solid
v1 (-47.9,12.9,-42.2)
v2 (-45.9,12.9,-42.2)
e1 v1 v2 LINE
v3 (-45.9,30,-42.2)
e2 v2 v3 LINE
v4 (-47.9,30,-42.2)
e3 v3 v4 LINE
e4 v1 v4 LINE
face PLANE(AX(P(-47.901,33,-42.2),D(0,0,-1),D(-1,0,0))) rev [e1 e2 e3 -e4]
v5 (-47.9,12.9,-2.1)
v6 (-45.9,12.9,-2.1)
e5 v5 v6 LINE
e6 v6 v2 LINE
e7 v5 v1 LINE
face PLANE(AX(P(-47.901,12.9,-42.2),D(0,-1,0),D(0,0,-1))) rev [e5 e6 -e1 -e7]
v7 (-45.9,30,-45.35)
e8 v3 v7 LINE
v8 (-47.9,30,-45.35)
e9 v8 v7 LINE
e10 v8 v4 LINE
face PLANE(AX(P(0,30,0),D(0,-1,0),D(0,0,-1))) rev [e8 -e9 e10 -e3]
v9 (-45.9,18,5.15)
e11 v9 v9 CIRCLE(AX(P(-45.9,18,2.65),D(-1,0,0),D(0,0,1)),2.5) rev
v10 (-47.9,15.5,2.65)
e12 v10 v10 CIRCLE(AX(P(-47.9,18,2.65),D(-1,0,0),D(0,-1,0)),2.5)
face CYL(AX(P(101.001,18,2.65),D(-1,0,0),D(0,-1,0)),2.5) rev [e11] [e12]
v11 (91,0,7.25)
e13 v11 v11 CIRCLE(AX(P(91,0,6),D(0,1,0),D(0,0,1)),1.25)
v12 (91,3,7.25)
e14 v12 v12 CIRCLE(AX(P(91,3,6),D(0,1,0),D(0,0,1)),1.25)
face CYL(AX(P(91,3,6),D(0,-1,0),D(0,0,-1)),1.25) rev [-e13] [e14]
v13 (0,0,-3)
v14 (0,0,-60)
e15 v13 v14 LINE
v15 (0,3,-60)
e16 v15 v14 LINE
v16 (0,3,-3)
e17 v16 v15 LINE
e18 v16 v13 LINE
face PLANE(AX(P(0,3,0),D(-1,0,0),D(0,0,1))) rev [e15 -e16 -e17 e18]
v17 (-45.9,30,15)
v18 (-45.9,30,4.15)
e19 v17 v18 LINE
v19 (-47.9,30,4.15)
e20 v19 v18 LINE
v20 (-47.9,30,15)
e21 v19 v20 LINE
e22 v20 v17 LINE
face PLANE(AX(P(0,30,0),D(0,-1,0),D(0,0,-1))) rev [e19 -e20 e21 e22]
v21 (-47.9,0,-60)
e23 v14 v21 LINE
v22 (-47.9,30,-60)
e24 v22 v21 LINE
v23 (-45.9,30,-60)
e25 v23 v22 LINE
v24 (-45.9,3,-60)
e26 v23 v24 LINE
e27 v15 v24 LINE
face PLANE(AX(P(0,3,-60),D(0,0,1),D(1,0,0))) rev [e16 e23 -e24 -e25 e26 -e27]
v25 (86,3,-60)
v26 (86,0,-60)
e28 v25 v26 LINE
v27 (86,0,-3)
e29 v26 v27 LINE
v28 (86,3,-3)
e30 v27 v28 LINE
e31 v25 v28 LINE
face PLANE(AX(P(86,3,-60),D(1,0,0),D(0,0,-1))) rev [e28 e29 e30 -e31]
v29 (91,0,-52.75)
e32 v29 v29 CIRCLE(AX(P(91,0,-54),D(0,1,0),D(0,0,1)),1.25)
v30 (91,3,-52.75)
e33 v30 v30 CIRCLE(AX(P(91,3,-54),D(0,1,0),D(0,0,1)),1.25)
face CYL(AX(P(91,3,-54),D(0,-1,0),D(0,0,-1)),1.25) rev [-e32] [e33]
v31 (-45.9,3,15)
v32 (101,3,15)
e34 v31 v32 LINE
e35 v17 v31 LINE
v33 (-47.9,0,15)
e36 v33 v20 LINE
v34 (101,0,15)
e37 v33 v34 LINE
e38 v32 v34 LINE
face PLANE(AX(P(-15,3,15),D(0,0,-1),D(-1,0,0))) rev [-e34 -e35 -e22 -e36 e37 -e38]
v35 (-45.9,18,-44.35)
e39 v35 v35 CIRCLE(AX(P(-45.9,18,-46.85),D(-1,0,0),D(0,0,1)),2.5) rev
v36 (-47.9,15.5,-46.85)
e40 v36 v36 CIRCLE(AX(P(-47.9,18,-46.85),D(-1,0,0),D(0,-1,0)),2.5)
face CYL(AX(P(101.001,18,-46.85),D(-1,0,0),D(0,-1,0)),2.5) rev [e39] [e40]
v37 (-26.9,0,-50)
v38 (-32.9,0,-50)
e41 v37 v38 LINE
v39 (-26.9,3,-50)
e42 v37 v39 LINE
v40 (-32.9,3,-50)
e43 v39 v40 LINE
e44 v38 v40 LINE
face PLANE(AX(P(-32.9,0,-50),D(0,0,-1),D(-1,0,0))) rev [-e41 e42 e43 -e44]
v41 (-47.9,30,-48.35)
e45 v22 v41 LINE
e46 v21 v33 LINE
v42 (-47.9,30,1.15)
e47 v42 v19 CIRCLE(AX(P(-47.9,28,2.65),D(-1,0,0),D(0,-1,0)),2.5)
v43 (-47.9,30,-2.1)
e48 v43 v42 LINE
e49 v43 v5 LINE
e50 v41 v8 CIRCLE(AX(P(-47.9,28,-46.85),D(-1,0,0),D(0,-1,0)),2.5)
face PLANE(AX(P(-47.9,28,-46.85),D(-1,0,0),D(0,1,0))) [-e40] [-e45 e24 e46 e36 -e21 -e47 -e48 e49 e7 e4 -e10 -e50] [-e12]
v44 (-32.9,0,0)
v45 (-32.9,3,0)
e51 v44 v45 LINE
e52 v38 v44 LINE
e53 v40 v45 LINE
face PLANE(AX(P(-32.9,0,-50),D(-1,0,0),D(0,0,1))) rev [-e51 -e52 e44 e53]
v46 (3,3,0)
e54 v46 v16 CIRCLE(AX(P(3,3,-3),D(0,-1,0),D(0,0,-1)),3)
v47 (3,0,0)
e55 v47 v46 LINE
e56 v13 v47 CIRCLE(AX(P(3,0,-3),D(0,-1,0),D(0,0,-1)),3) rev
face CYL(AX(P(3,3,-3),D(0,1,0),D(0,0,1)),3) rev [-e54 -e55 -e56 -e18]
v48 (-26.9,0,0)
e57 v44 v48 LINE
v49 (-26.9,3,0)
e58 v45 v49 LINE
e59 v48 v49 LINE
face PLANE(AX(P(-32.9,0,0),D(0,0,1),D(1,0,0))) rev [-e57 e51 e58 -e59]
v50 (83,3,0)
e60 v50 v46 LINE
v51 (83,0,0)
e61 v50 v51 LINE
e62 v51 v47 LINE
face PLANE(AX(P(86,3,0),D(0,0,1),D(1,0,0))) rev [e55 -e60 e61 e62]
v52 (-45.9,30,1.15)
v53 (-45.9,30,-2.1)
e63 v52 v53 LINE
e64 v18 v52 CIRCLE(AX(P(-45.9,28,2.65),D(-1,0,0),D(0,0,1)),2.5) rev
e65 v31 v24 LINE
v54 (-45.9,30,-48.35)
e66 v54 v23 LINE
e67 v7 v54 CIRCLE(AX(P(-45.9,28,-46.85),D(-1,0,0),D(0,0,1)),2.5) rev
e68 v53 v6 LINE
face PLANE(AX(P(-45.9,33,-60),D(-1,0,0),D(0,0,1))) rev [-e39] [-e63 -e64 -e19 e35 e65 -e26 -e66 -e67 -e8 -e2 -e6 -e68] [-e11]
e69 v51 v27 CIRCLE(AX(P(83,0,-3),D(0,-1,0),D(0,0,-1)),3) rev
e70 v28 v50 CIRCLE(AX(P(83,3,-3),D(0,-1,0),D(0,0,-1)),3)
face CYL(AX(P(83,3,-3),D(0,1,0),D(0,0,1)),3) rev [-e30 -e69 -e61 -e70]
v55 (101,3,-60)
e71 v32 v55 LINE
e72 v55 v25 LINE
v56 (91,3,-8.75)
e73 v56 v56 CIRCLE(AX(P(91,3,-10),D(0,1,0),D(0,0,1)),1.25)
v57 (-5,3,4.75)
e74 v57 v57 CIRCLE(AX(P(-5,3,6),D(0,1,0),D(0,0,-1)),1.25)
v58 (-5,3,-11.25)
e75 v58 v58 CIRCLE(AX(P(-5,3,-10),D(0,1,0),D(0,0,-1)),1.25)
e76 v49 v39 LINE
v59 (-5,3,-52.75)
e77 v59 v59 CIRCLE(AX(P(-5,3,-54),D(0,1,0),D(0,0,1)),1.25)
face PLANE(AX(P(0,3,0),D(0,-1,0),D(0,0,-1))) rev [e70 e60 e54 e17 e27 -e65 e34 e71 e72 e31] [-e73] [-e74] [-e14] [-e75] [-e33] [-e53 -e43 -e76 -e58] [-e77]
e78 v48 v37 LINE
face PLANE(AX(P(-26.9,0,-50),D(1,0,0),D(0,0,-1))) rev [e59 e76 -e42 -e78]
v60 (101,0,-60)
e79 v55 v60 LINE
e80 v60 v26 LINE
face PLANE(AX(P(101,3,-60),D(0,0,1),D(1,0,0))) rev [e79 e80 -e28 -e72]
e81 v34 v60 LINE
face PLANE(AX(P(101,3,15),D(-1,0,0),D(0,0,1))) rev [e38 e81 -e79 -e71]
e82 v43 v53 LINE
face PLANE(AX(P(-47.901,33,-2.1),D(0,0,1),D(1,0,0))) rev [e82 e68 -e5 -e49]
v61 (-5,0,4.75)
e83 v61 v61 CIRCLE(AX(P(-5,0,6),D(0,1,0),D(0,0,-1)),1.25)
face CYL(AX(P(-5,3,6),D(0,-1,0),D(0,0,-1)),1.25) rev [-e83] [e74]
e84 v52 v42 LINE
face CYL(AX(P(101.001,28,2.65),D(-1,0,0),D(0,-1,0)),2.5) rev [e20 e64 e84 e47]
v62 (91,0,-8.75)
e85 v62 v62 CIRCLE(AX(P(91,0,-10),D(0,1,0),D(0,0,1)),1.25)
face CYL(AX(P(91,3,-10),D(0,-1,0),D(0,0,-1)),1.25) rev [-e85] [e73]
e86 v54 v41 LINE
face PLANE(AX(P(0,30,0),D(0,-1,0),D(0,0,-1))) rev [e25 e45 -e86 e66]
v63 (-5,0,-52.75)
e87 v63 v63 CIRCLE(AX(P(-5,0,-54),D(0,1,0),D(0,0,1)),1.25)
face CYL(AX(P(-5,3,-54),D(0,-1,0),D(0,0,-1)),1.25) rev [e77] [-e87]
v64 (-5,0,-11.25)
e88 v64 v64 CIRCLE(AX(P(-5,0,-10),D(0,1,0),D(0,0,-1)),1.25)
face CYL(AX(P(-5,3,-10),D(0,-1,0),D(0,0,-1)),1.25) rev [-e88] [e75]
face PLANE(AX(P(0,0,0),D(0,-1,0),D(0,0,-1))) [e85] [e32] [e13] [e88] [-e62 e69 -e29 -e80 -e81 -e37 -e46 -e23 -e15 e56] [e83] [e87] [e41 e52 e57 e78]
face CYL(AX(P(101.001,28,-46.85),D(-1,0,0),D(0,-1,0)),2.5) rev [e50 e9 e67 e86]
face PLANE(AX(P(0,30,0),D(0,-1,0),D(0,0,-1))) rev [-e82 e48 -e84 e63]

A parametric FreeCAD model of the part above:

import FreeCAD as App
import Part
import Sketcher
from FreeCAD import Vector
Q = App.Units.Quantity


def edges_at(feature, points):
    """Names of the edges that pass closest to the given points."""
    edges = feature.Shape.Edges
    near = lambda p: min(range(len(edges)), key=lambda i: edges[i].distToShape(Part.Vertex(*p))[0])
    return sorted({f"Edge{near(p) + 1}" for p in points})


def add_polygon(sketch, points):
    """Adds a closed chain of lines whose ends are joined by coincident constraints."""
    first, n = sketch.GeometryCount, len(points)
    for a, b in zip(points, points[1:] + points[:1]):
        sketch.addGeometry(Part.LineSegment(App.Vector(*a, 0), App.Vector(*b, 0)), False)
    for i in range(n):
        sketch.addConstraint(Sketcher.Constraint("Coincident", first + i, 2, first + (i + 1) % n, 1))

doc = App.newDocument("Part")
params = doc.addObject("Spreadsheet::Sheet", "Params")
for row, (alias, value) in enumerate([
    ("sketch1_diameter", "2.5 mm"),
    ("sketch1_width", "15 mm"),
    ("sketch1_width2", "116 mm"),
    ("sketch1_height", "60 mm"),
    ("sketch1_height2", "75 mm"),
    ("pad1_length", "3 mm"),
    ("fillet_radius", "3 mm"),
    ("sketch2_width", "3 mm"),
    ("sketch2_height", "75 mm"),
    ("pad2_length", "32.9 mm"),
    ("sketch3_width", "2 mm"),
    ("sketch3_height", "75 mm"),
    ("pad3_length", "30 mm"),
    ("sketch4_width", "20.1 mm"),
    ("sketch4_height", "40.1 mm"),
    ("sketch5_diameter", "5 mm"),
    ("sketch6_diameter", "5 mm"),
    ("sketch7_diameter", "5 mm"),
    ("sketch8_diameter", "5 mm"),
    ("sketch9_width", "2 mm"),
    ("sketch9_height", "75 mm"),
    ("pocket6_length", "3 mm"),
    ("sketch10_width", "6 mm"),
    ("sketch10_height", "50 mm"),
], start=1):
    params.set(f"A{row}", alias)
    params.set(f"B{row}", "=" + value)
    params.setAlias(f"B{row}", alias)

body = doc.addObject("PartDesign::Body", "Body")

sketch1 = body.newObject("Sketcher::SketchObject", "Sketch")
sketch1.AttachmentSupport = (doc.getObject("XZ_Plane"), [""])
sketch1.MapMode = "FlatFace"
add_polygon(sketch1, [(0, 0), (0, -60), (-15, -60), (-15, 15), (101, 15), (101, -60), (86, -60), (86, 0)])
sketch1.addGeometry(Part.Circle(Vector(-5, 6, 0), Vector(0, 0, 1), 1.2), False)
sketch1.addGeometry(Part.Circle(Vector(-5, -10, 0), Vector(0, 0, 1), 1.2), False)
sketch1.addGeometry(Part.Circle(Vector(91, 6, 0), Vector(0, 0, 1), 1.2), False)
sketch1.addGeometry(Part.Circle(Vector(91, -10, 0), Vector(0, 0, 1), 1.2), False)
sketch1.addGeometry(Part.Circle(Vector(-5, -54, 0), Vector(0, 0, 1), 1.2), False)
sketch1.addGeometry(Part.Circle(Vector(91, -54, 0), Vector(0, 0, 1), 1.2), False)
sketch1.addConstraint([
    Sketcher.Constraint("Vertical", 0),
    Sketcher.Constraint("Horizontal", 1),
    Sketcher.Constraint("Vertical", 2),
    Sketcher.Constraint("Horizontal", 3),
    Sketcher.Constraint("Vertical", 4),
    Sketcher.Constraint("Horizontal", 5),
    Sketcher.Constraint("Vertical", 6),
    Sketcher.Constraint("Horizontal", 7),
    Sketcher.Constraint("Coincident", 7, 2, -1, 1),
    Sketcher.Constraint("Equal", 8, 9),
    Sketcher.Constraint("Equal", 9, 10),
    Sketcher.Constraint("Equal", 10, 11),
    Sketcher.Constraint("Equal", 11, 12),
    Sketcher.Constraint("Equal", 12, 13),
    Sketcher.Constraint("Horizontal", 8, 3, 10, 3),
    Sketcher.Constraint("Horizontal", 9, 3, 11, 3),
    Sketcher.Constraint("Horizontal", 12, 3, 13, 3),
    Sketcher.Constraint("Horizontal", 1, 2, 4, 2),
    Sketcher.Constraint("Vertical", 8, 3, 9, 3),
    Sketcher.Constraint("Vertical", 10, 3, 11, 3),
    Sketcher.Constraint("Vertical", 9, 3, 12, 3),
    Sketcher.Constraint("Vertical", 11, 3, 13, 3),
    Sketcher.Constraint("Equal", 1, 5),
    Sketcher.Constraint("Diameter", 8, Q("2.5 mm")),
    Sketcher.Constraint("DistanceX", 1, 2, 1, 1, Q("15 mm")),
    Sketcher.Constraint("DistanceX", 3, 1, 3, 2, Q("116 mm")),
    Sketcher.Constraint("DistanceY", 0, 2, 0, 1, Q("60 mm")),
    Sketcher.Constraint("DistanceY", 2, 1, 2, 2, Q("75 mm")),
    Sketcher.Constraint("DistanceX", 8, 3, -1, 1, Q("5 mm")),
    Sketcher.Constraint("DistanceY", -1, 1, 8, 3, Q("6 mm")),
    Sketcher.Constraint("DistanceY", 9, 3, -1, 1, Q("10 mm")),
    Sketcher.Constraint("DistanceX", -1, 1, 10, 3, Q("91 mm")),
    Sketcher.Constraint("DistanceY", 12, 3, -1, 1, Q("54 mm")),
])
sketch1.setExpression("Constraints[31]", "Params.sketch1_diameter")
sketch1.setExpression("Constraints[32]", "Params.sketch1_width")
sketch1.setExpression("Constraints[33]", "Params.sketch1_width2")
sketch1.setExpression("Constraints[34]", "Params.sketch1_height")
sketch1.setExpression("Constraints[35]", "Params.sketch1_height2")
pad1 = body.newObject("PartDesign::Pad", "Pad")
pad1.Profile = sketch1
pad1.setExpression("Length", "Params.pad1_length")
pad1.Reversed = True
doc.recompute()

fillet = body.newObject("PartDesign::Fillet", "Fillet")
fillet.Base = (pad1, edges_at(pad1, [(86, 1.5, 0), (0, 1.5, 0)]))
fillet.setExpression("Radius", "Params.fillet_radius")

sketch2 = body.newObject("Sketcher::SketchObject", "Sketch001")
sketch2.AttachmentSupport = (doc.getObject("YZ_Plane"), [""])
sketch2.MapMode = "FlatFace"
sketch2.AttachmentOffset = App.Placement(Vector(0, 0, -15), App.Rotation())
add_polygon(sketch2, [(3, -60), (0, -60), (0, 15), (3, 15)])
sketch2.addConstraint([
    Sketcher.Constraint("Horizontal", 0),
    Sketcher.Constraint("Vertical", 1),
    Sketcher.Constraint("Horizontal", 2),
    Sketcher.Constraint("Vertical", 3),
    Sketcher.Constraint("PointOnObject", 0, 2, -2),
    Sketcher.Constraint("DistanceX", 0, 2, 0, 1, Q("3 mm")),
    Sketcher.Constraint("DistanceY", 1, 1, 1, 2, Q("75 mm")),
    Sketcher.Constraint("DistanceY", 0, 2, -1, 1, Q("60 mm")),
])
sketch2.setExpression("Constraints[9]", "Params.sketch2_width")
sketch2.setExpression("Constraints[10]", "Params.sketch2_height")
pad2 = body.newObject("PartDesign::Pad", "Pad001")
pad2.Profile = sketch2
pad2.setExpression("Length", "Params.pad2_length")
pad2.Reversed = True

sketch3 = body.newObject("Sketcher::SketchObject", "Sketch002")
sketch3.AttachmentSupport = (doc.getObject("XZ_Plane"), [""])
sketch3.MapMode = "FlatFace"
sketch3.AttachmentOffset = App.Placement(Vector(0, 0, -3), App.Rotation())
add_polygon(sketch3, [(-47.9, -60), (-47.9, 15), (-45.9, 15), (-45.9, -60)])
sketch3.addConstraint([
    Sketcher.Constraint("Vertical", 0),
    Sketcher.Constraint("Horizontal", 1),
    Sketcher.Constraint("Vertical", 2),
    Sketcher.Constraint("Horizontal", 3),
    Sketcher.Constraint("DistanceX", 1, 1, 1, 2, Q("2 mm")),
    Sketcher.Constraint("DistanceY", 0, 1, 0, 2, Q("75 mm")),
    Sketcher.Constraint("DistanceY", -1, 1, 0, 2, Q("15 mm")),
    Sketcher.Constraint("DistanceX", 0, 2, -1, 1, Q("47.9 mm")),
])
sketch3.setExpression("Constraints[8]", "Params.sketch3_width")
sketch3.setExpression("Constraints[9]", "Params.sketch3_height")
pad3 = body.newObject("PartDesign::Pad", "Pad002")
pad3.Profile = sketch3
pad3.setExpression("Length", "Params.pad3_length")
pad3.Reversed = True

sketch4 = body.newObject("Sketcher::SketchObject", "Sketch003")
sketch4.AttachmentSupport = (doc.getObject("YZ_Plane"), [""])
sketch4.MapMode = "FlatFace"
sketch4.AttachmentOffset = App.Placement(Vector(0, 0, -45.9), App.Rotation())
add_polygon(sketch4, [(33, -2), (13, -2), (13, -42), (33, -42)])
sketch4.addConstraint([
    Sketcher.Constraint("Horizontal", 0),
    Sketcher.Constraint("Vertical", 1),
    Sketcher.Constraint("Horizontal", 2),
    Sketcher.Constraint("Vertical", 3),
    Sketcher.Constraint("DistanceX", 0, 2, 0, 1, Q("20.1 mm")),
    Sketcher.Constraint("DistanceY", 1, 2, 1, 1, Q("40.1 mm")),
    Sketcher.Constraint("DistanceX", -1, 1, 2, 2, Q("33 mm")),
    Sketcher.Constraint("DistanceY", 0, 2, -1, 1, Q("2.1 mm")),
])
sketch4.setExpression("Constraints[8]", "Params.sketch4_width")
sketch4.setExpression("Constraints[9]", "Params.sketch4_height")
pocket1 = body.newObject("PartDesign::Pocket", "Pocket")
pocket1.Profile = sketch4
pocket1.Type = "UpToFirst"

sketch5 = body.newObject("Sketcher::SketchObject", "Sketch004")
sketch5.AttachmentSupport = (doc.getObject("YZ_Plane"), [""])
sketch5.MapMode = "FlatFace"
sketch5.AttachmentOffset = App.Placement(Vector(0, 0, -47.9), App.Rotation())
sketch5.addGeometry(Part.Circle(Vector(18, -46.9, 0), Vector(0, 0, 1), 2.5), False)
sketch5.addConstraint([
    Sketcher.Constraint("Diameter", 0, Q("5 mm")),
    Sketcher.Constraint("DistanceX", -1, 1, 0, 3, Q("18 mm")),
    Sketcher.Constraint("DistanceY", 0, 3, -1, 1, Q("46.85 mm")),
])
sketch5.setExpression("Constraints[0]", "Params.sketch5_diameter")
pocket2 = body.newObject("PartDesign::Pocket", "Pocket001")
pocket2.Profile = sketch5
pocket2.Type = "UpToFirst"
pocket2.Reversed = True

sketch6 = body.newObject("Sketcher::SketchObject", "Sketch005")
sketch6.AttachmentSupport = (doc.getObject("YZ_Plane"), [""])
sketch6.MapMode = "FlatFace"
sketch6.AttachmentOffset = App.Placement(Vector(0, 0, -47.9), App.Rotation())
sketch6.addGeometry(Part.Circle(Vector(28, -46.9, 0), Vector(0, 0, 1), 2.5), False)
sketch6.addConstraint([
    Sketcher.Constraint("Diameter", 0, Q("5 mm")),
    Sketcher.Constraint("DistanceX", -1, 1, 0, 3, Q("28 mm")),
    Sketcher.Constraint("DistanceY", 0, 3, -1, 1, Q("46.85 mm")),
])
sketch6.setExpression("Constraints[0]", "Params.sketch6_diameter")
pocket3 = body.newObject("PartDesign::Pocket", "Pocket002")
pocket3.Profile = sketch6
pocket3.Type = "UpToFirst"
pocket3.Reversed = True

sketch7 = body.newObject("Sketcher::SketchObject", "Sketch006")
sketch7.AttachmentSupport = (doc.getObject("YZ_Plane"), [""])
sketch7.MapMode = "FlatFace"
sketch7.AttachmentOffset = App.Placement(Vector(0, 0, -47.9), App.Rotation())
sketch7.addGeometry(Part.Circle(Vector(18, 2.6, 0), Vector(0, 0, 1), 2.5), False)
sketch7.addConstraint([
    Sketcher.Constraint("Diameter", 0, Q("5 mm")),
    Sketcher.Constraint("DistanceX", -1, 1, 0, 3, Q("18 mm")),
    Sketcher.Constraint("DistanceY", -1, 1, 0, 3, Q("2.65 mm")),
])
sketch7.setExpression("Constraints[0]", "Params.sketch7_diameter")
pocket4 = body.newObject("PartDesign::Pocket", "Pocket003")
pocket4.Profile = sketch7
pocket4.Type = "UpToFirst"
pocket4.Reversed = True

sketch8 = body.newObject("Sketcher::SketchObject", "Sketch007")
sketch8.AttachmentSupport = (doc.getObject("YZ_Plane"), [""])
sketch8.MapMode = "FlatFace"
sketch8.AttachmentOffset = App.Placement(Vector(0, 0, -47.9), App.Rotation())
sketch8.addGeometry(Part.Circle(Vector(28, 2.6, 0), Vector(0, 0, 1), 2.5), False)
sketch8.addConstraint([
    Sketcher.Constraint("Diameter", 0, Q("5 mm")),
    Sketcher.Constraint("DistanceX", -1, 1, 0, 3, Q("28 mm")),
    Sketcher.Constraint("DistanceY", -1, 1, 0, 3, Q("2.65 mm")),
])
sketch8.setExpression("Constraints[0]", "Params.sketch8_diameter")
pocket5 = body.newObject("PartDesign::Pocket", "Pocket004")
pocket5.Profile = sketch8
pocket5.Type = "UpToFirst"
pocket5.Reversed = True

sketch9 = body.newObject("Sketcher::SketchObject", "Sketch008")
sketch9.AttachmentSupport = (doc.getObject("XZ_Plane"), [""])
sketch9.MapMode = "FlatFace"
sketch9.AttachmentOffset = App.Placement(Vector(0, 0, -33), App.Rotation())
add_polygon(sketch9, [(-47.9, -60), (-47.9, 15), (-45.9, 15), (-45.9, -60)])
sketch9.addConstraint([
    Sketcher.Constraint("Vertical", 0),
    Sketcher.Constraint("Horizontal", 1),
    Sketcher.Constraint("Vertical", 2),
    Sketcher.Constraint("Horizontal", 3),
    Sketcher.Constraint("DistanceX", 1, 1, 1, 2, Q("2 mm")),
    Sketcher.Constraint("DistanceY", 0, 1, 0, 2, Q("75 mm")),
    Sketcher.Constraint("DistanceY", -1, 1, 0, 2, Q("15 mm")),
    Sketcher.Constraint("DistanceX", 0, 2, -1, 1, Q("47.9 mm")),
])
sketch9.setExpression("Constraints[8]", "Params.sketch9_width")
sketch9.setExpression("Constraints[9]", "Params.sketch9_height")
pocket6 = body.newObject("PartDesign::Pocket", "Pocket005")
pocket6.Profile = sketch9
pocket6.setExpression("Length", "Params.pocket6_length")
pocket6.Reversed = True

sketch10 = body.newObject("Sketcher::SketchObject", "Sketch009")
sketch10.AttachmentSupport = (doc.getObject("XZ_Plane"), [""])
sketch10.MapMode = "FlatFace"
sketch10.AttachmentOffset = App.Placement(Vector(0, 0, -3), App.Rotation())
add_polygon(sketch10, [(-33, -50), (-33, 0), (-27, 0), (-27, -50)])
sketch10.addConstraint([
    Sketcher.Constraint("Vertical", 0),
    Sketcher.Constraint("Horizontal", 1),
    Sketcher.Constraint("Vertical", 2),
    Sketcher.Constraint("Horizontal", 3),
    Sketcher.Constraint("PointOnObject", 0, 2, -1),
    Sketcher.Constraint("DistanceX", 1, 1, 1, 2, Q("6 mm")),
    Sketcher.Constraint("DistanceY", 0, 1, 0, 2, Q("50 mm")),
    Sketcher.Constraint("DistanceX", 0, 2, -1, 1, Q("32.9 mm")),
])
sketch10.setExpression("Constraints[9]", "Params.sketch10_width")
sketch10.setExpression("Constraints[10]", "Params.sketch10_height")
pocket7 = body.newObject("PartDesign::Pocket", "Pocket006")
pocket7.Profile = sketch10
pocket7.Type = "ThroughAll"
pocket7.Reversed = True

doc.recompute()
